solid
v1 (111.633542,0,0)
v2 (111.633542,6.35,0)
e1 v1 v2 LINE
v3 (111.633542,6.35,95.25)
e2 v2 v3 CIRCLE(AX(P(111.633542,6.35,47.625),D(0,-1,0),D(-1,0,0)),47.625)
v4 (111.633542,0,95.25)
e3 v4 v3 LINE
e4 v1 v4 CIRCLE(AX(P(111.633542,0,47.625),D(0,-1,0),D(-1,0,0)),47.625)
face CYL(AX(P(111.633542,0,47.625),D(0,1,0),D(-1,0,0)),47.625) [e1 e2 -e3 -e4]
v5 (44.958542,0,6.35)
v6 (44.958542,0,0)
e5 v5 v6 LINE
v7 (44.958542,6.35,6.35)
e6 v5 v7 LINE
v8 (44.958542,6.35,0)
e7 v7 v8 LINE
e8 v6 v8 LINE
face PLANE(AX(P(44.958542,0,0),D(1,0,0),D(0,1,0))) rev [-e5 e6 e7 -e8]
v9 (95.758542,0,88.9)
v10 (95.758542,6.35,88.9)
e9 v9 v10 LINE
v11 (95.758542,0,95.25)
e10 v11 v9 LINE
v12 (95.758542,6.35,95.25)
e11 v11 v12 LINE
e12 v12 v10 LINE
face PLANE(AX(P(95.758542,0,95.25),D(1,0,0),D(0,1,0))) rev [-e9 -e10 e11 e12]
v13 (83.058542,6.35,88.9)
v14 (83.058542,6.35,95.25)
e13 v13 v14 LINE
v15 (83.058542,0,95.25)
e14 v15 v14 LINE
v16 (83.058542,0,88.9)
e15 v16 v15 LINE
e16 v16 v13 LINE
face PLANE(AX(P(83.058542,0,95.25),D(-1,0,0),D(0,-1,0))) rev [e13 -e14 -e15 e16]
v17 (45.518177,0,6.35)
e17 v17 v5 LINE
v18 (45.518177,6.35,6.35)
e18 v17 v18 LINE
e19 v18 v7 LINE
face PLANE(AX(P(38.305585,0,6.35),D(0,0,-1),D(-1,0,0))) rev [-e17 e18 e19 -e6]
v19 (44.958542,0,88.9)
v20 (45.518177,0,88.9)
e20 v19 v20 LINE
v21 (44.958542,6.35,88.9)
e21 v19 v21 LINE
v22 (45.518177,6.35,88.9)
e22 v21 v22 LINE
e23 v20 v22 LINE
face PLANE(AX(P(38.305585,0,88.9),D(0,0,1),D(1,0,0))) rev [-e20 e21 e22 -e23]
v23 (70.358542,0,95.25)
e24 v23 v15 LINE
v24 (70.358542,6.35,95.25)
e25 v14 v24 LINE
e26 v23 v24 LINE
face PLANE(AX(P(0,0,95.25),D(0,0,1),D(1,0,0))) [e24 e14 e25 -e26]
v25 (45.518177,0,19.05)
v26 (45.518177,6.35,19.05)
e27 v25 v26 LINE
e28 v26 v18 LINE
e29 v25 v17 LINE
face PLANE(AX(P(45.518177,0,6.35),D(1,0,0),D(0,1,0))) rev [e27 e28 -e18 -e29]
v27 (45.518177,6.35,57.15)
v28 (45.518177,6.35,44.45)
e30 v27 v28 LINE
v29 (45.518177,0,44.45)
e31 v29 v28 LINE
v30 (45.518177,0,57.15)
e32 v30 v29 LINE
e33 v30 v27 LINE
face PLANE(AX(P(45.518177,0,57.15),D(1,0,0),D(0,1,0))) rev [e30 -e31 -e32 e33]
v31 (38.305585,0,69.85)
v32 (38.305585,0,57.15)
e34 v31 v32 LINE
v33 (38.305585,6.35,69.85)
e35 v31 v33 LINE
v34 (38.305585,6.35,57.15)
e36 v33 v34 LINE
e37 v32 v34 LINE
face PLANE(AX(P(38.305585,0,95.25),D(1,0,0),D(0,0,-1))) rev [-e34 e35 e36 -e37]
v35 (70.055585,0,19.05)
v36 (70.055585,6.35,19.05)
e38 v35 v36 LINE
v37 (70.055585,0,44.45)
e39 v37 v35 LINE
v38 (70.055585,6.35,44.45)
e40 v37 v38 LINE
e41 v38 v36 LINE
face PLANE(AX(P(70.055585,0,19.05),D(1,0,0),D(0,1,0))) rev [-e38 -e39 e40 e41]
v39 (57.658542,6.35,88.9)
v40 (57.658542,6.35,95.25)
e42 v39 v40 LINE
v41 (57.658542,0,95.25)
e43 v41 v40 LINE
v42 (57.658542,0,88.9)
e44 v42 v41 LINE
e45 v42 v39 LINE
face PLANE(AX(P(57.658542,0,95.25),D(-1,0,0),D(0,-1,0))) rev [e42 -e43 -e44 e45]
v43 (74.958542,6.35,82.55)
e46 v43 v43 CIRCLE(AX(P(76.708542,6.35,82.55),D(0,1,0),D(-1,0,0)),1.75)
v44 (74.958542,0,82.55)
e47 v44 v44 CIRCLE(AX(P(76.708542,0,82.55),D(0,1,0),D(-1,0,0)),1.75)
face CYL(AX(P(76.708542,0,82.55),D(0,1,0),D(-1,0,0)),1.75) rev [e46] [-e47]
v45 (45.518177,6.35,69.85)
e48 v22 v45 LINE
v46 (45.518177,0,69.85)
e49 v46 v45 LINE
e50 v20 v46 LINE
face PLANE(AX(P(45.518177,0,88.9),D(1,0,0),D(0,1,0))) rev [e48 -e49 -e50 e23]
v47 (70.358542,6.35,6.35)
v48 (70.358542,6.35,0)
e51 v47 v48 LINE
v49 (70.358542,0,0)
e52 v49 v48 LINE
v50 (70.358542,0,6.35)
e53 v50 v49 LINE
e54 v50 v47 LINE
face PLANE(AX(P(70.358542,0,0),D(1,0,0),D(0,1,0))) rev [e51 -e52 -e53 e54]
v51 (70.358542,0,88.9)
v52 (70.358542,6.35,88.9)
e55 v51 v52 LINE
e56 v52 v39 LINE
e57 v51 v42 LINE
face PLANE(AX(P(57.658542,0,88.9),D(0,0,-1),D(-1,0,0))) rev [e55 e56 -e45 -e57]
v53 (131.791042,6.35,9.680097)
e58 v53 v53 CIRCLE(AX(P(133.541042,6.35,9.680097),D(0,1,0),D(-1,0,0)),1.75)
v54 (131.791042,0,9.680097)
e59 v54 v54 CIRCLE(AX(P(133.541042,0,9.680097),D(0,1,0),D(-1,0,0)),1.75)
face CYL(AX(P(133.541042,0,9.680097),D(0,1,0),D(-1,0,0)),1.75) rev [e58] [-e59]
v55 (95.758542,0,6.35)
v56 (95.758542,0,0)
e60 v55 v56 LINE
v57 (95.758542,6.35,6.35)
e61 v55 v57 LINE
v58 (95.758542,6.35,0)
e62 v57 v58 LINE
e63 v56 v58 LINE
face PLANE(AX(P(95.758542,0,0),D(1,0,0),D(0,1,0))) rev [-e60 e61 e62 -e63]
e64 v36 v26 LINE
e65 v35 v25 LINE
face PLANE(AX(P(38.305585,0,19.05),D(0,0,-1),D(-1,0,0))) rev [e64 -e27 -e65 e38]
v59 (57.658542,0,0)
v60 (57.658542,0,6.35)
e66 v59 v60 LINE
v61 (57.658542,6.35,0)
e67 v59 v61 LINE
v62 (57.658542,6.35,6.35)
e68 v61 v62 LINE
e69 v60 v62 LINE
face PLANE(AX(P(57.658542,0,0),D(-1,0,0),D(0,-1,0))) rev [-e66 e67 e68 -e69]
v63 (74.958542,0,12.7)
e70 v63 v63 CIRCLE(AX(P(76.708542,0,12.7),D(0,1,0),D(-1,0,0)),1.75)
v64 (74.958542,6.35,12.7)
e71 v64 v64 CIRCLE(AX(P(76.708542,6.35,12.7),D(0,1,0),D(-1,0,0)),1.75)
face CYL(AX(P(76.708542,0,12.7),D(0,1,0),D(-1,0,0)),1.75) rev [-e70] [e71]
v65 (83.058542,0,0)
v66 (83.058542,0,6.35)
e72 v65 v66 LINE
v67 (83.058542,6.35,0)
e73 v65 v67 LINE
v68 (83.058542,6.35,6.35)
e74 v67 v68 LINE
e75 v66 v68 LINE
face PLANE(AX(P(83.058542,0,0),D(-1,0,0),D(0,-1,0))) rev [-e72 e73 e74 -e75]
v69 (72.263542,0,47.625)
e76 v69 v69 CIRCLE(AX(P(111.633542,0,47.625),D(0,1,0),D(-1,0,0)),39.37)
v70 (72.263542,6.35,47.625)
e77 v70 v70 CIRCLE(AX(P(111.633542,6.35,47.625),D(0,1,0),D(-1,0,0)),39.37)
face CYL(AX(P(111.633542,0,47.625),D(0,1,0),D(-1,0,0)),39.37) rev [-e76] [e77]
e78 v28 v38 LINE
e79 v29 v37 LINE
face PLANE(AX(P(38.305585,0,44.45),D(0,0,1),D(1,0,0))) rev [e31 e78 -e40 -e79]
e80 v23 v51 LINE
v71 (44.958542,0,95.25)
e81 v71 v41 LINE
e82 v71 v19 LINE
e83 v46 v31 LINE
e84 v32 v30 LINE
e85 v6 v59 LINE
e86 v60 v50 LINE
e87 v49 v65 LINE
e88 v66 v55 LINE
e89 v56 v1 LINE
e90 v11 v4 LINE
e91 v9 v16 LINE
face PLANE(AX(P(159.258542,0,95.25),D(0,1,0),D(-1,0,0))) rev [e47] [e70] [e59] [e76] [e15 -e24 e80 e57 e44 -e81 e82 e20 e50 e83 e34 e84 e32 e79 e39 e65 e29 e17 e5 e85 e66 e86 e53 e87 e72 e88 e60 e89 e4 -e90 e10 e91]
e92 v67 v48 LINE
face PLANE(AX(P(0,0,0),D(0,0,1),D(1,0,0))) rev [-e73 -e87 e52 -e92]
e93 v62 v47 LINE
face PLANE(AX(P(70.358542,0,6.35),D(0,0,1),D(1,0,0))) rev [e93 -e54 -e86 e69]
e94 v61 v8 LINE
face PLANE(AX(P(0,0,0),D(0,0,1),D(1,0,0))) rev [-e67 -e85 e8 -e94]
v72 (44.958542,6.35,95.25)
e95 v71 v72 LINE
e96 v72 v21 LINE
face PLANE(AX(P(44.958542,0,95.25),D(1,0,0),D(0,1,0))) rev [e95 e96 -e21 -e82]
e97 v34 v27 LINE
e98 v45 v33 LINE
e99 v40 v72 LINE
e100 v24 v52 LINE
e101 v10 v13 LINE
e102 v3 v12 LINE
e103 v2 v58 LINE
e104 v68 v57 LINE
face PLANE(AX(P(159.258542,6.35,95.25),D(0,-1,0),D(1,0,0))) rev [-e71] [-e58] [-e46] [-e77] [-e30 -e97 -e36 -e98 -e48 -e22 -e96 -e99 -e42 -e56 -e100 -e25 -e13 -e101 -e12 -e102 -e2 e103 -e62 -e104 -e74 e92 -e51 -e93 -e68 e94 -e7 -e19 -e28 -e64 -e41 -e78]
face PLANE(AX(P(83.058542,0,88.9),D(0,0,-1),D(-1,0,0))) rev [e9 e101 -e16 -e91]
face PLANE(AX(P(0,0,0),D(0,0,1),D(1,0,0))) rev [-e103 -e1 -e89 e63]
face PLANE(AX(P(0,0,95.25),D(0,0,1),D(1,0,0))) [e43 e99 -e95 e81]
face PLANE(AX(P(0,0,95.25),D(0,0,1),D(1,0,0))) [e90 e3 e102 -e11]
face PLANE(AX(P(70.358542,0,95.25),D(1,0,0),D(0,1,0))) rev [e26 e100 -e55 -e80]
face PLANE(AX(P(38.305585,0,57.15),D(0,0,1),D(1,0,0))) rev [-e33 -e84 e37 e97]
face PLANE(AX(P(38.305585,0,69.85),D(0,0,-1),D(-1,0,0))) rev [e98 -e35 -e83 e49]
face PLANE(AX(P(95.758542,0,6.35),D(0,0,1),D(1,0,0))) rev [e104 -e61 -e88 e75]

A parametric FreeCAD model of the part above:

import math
import FreeCAD as App
import Part
import Sketcher
Q = App.Units.Quantity


def add_polygon(sketch, points):
    """Adds a closed chain of lines whose ends are joined by coincident constraints."""
    first, n = sketch.GeometryCount, len(points)
    for a, b in zip(points, points[1:] + points[:1]):
        sketch.addGeometry(Part.LineSegment(App.Vector(*a, 0), App.Vector(*b, 0)), False)
    for i in range(n):
        sketch.addConstraint(Sketcher.Constraint("Coincident", first + i, 2, first + (i + 1) % n, 1))

doc = App.newDocument("Part")
params = doc.addObject("Spreadsheet::Sheet", "Params")
for row, (alias, value) in enumerate([
    ("sketch1_height", "0.25 in"),
    ("pad1_length", "3.75 in"),
    ("sketch2_diameter", "3.1 in"),
    ("sketch3_radius", "1.875 in"),
    ("sketch4_height", "1 in"),
    ("sketch4_width", "1.25 in"),
    ("sketch5_width", "0.5 in"),
    ("sketch5_height", "0.25 in"),
    ("linearpattern_pitch", "1 in"),
    ("sketch6_height", "0.5 in"),
    ("sketch6_height2", "0.75 in"),
], start=1):
    params.set(f"A{row}", alias)
    params.set(f"B{row}", "=" + value)
    params.setAlias(f"B{row}", alias)

body = doc.addObject("PartDesign::Body", "Body")

# Sketch on XY plane
sketch1 = doc.addObject("Sketcher::SketchObject", "Sketch")
body.addObject(sketch1)
sketch1.AttachmentSupport = (doc.XY_Plane, [""])
sketch1.MapMode = "FlatFace"
add_polygon(sketch1, [(38, 6), (38, 0), (159, 0), (159, 6)])  # lines 0-3
sketch1.addConstraint(Sketcher.Constraint("Vertical", 0))
sketch1.addConstraint(Sketcher.Constraint("Horizontal", 1))
sketch1.addConstraint(Sketcher.Constraint("Vertical", 2))
sketch1.addConstraint(Sketcher.Constraint("Horizontal", 3))
sketch1.addConstraint(Sketcher.Constraint("PointOnObject", 0, 2, -1))
sketch1.addConstraint(Sketcher.Constraint("DistanceY", 0, 2, 0, 1, Q("0.25 in")))
sketch1.addConstraint(Sketcher.Constraint("DistanceX", 1, 1, 1, 2, Q("120.952956 mm")))
sketch1.addConstraint(Sketcher.Constraint("DistanceX", -1, 1, 1, 2, Q("159.258542 mm")))
sketch1.setExpression("Constraints[9]", "Params.sketch1_height")
pad1 = doc.addObject("PartDesign::Pad", "Pad")
body.addObject(pad1)
pad1.Profile = sketch1
pad1.setExpression("Length", "Params.pad1_length")

# Sketch on XZ plane
sketch2 = doc.addObject("Sketcher::SketchObject", "Sketch001")
body.addObject(sketch2)
sketch2.AttachmentSupport = (doc.XZ_Plane, [""])
sketch2.MapMode = "FlatFace"
sketch2.AttachmentOffset = App.Placement(App.Vector(0, 0, -0.25 * 25.4), App.Rotation())
sketch2.addGeometry(Part.Circle(App.Vector(112, 48, 0), App.Vector(0, 0, 1), 39), False)
sketch2.addConstraint(Sketcher.Constraint("Diameter", 0, Q("3.1 in")))
sketch2.addConstraint(Sketcher.Constraint("DistanceY", -1, 1, 0, 3, Q("1.875 in")))
sketch2.addConstraint(Sketcher.Constraint("DistanceX", -1, 1, 0, 3, Q("111.633542 mm")))
sketch2.setExpression("Constraints[0]", "Params.sketch2_diameter")
pocket1 = doc.addObject("PartDesign::Pocket", "Pocket")
body.addObject(pocket1)
pocket1.Profile = sketch2
pocket1.Type = "ThroughAll"
pocket1.Reversed = True

# Sketch on XZ plane
sketch3 = doc.addObject("Sketcher::SketchObject", "Sketch002")
body.addObject(sketch3)
sketch3.AttachmentSupport = (doc.XZ_Plane, [""])
sketch3.MapMode = "FlatFace"
sketch3.AttachmentOffset = App.Placement(App.Vector(0, 0, -0.25 * 25.4), App.Rotation())
sketch3.addGeometry(Part.LineSegment(App.Vector(112, 95, 0), App.Vector(179, 95, 0)), False)
sketch3.addGeometry(Part.LineSegment(App.Vector(179, 95, 0), App.Vector(179, 0, 0)), False)
sketch3.addGeometry(Part.LineSegment(App.Vector(179, 0, 0), App.Vector(112, 0, 0)), False)
sketch3.addGeometry(Part.ArcOfCircle(Part.Circle(App.Vector(112, 48, 0), App.Vector(0, 0, 1), 48), math.radians(-90), math.radians(90)), False)
sketch3.addConstraint(Sketcher.Constraint("Coincident", 0, 2, 1, 1))
sketch3.addConstraint(Sketcher.Constraint("Coincident", 1, 2, 2, 1))
sketch3.addConstraint(Sketcher.Constraint("Tangent", 2, 2, 3, 1))
sketch3.addConstraint(Sketcher.Constraint("Tangent", 3, 2, 0, 1))
sketch3.addConstraint(Sketcher.Constraint("Horizontal", 0))
sketch3.addConstraint(Sketcher.Constraint("Vertical", 1))
sketch3.addConstraint(Sketcher.Constraint("Horizontal", 2))
sketch3.addConstraint(Sketcher.Constraint("PointOnObject", 1, 2, -1))
sketch3.addConstraint(Sketcher.Constraint("Radius", 3, Q("1.875 in")))
sketch3.addConstraint(Sketcher.Constraint("DistanceX", 0, 1, 0, 2, Q("67.417901 mm")))
sketch3.addConstraint(Sketcher.Constraint("DistanceX", -1, 1, 3, 3, Q("111.633542 mm")))
sketch3.setExpression("Constraints[8]", "Params.sketch3_radius")
pocket2 = doc.addObject("PartDesign::Pocket", "Pocket001")
body.addObject(pocket2)
pocket2.Profile = sketch3
pocket2.Type = "ThroughAll"
pocket2.Reversed = True

# Sketch on XZ plane
sketch4 = doc.addObject("Sketcher::SketchObject", "Sketch003")
body.addObject(sketch4)
sketch4.AttachmentSupport = (doc.XZ_Plane, [""])
sketch4.MapMode = "FlatFace"
sketch4.AttachmentOffset = App.Placement(App.Vector(0, 0, -0.25 * 25.4), App.Rotation())
add_polygon(sketch4, [(38, 19), (38, 44), (70, 44), (70, 19)])  # lines 0-3
sketch4.addConstraint(Sketcher.Constraint("Vertical", 0))
sketch4.addConstraint(Sketcher.Constraint("Horizontal", 1))
sketch4.addConstraint(Sketcher.Constraint("Vertical", 2))
sketch4.addConstraint(Sketcher.Constraint("Horizontal", 3))
sketch4.addConstraint(Sketcher.Constraint("DistanceY", 0, 1, 0, 2, Q("1 in")))
sketch4.addConstraint(Sketcher.Constraint("DistanceX", 1, 1, 1, 2, Q("1.25 in")))
sketch4.addConstraint(Sketcher.Constraint("DistanceY", -1, 1, 0, 2, Q("1.75 in")))
sketch4.addConstraint(Sketcher.Constraint("DistanceX", -1, 1, 0, 2, Q("38.305585 mm")))
sketch4.setExpression("Constraints[8]", "Params.sketch4_height")
sketch4.setExpression("Constraints[9]", "Params.sketch4_width")
pocket3 = doc.addObject("PartDesign::Pocket", "Pocket002")
body.addObject(pocket3)
pocket3.Profile = sketch4
pocket3.Type = "ThroughAll"
pocket3.Reversed = True

# Sketch on XZ plane
sketch5 = doc.addObject("Sketcher::SketchObject", "Sketch004")
body.addObject(sketch5)
sketch5.AttachmentSupport = (doc.XZ_Plane, [""])
sketch5.MapMode = "FlatFace"
sketch5.AttachmentOffset = App.Placement(App.Vector(0, 0, -0.25 * 25.4), App.Rotation())
add_polygon(sketch5, [(83, 0), (83, 6), (96, 6), (96, 0)])  # lines 0-3
add_polygon(sketch5, [(83, 89), (83, 95), (96, 95), (96, 89)])  # lines 4-7
sketch5.addConstraint(Sketcher.Constraint("Vertical", 0))
sketch5.addConstraint(Sketcher.Constraint("Horizontal", 1))
sketch5.addConstraint(Sketcher.Constraint("Vertical", 2))
sketch5.addConstraint(Sketcher.Constraint("Horizontal", 3))
sketch5.addConstraint(Sketcher.Constraint("Vertical", 4))
sketch5.addConstraint(Sketcher.Constraint("Horizontal", 5))
sketch5.addConstraint(Sketcher.Constraint("Vertical", 6))
sketch5.addConstraint(Sketcher.Constraint("Horizontal", 7))
sketch5.addConstraint(Sketcher.Constraint("PointOnObject", 2, 2, -1))
sketch5.addConstraint(Sketcher.Constraint("Vertical", 3, 2, 4, 2))
sketch5.addConstraint(Sketcher.Constraint("Vertical", 2, 2, 5, 2))
sketch5.addConstraint(Sketcher.Constraint("Equal", 2, 4))
sketch5.addConstraint(Sketcher.Constraint("DistanceX", 1, 1, 1, 2, Q("0.5 in")))
sketch5.addConstraint(Sketcher.Constraint("DistanceY", 0, 1, 0, 2, Q("0.25 in")))
sketch5.addConstraint(Sketcher.Constraint("DistanceY", -1, 1, 6, 2, Q("3.5 in")))
sketch5.addConstraint(Sketcher.Constraint("DistanceX", -1, 1, 0, 2, Q("83.058542 mm")))
sketch5.setExpression("Constraints[20]", "Params.sketch5_width")
sketch5.setExpression("Constraints[21]", "Params.sketch5_height")
pocket4 = doc.addObject("PartDesign::Pocket", "Pocket003")
body.addObject(pocket4)
pocket4.Profile = sketch5
pocket4.Type = "ThroughAll"
pocket4.Reversed = True
doc.recompute()

linearpattern = doc.addObject("PartDesign::LinearPattern", "LinearPattern")
body.addObject(linearpattern)
linearpattern.Originals = [pocket4]
linearpattern.Direction = (doc.X_Axis, [""])
linearpattern.Mode = "offset"
linearpattern.setExpression("Offset", "Params.linearpattern_pitch")
linearpattern.Occurrences = 3
linearpattern.Reversed = True
body.Tip = linearpattern

# Sketch on XZ plane
sketch6 = doc.addObject("Sketcher::SketchObject", "Sketch005")
body.addObject(sketch6)
sketch6.AttachmentSupport = (doc.XZ_Plane, [""])
sketch6.MapMode = "FlatFace"
sketch6.AttachmentOffset = App.Placement(App.Vector(0, 0, -0.25 * 25.4), App.Rotation())
add_polygon(sketch6, [(38, 6), (38, 19), (46, 19), (46, 6)])  # lines 0-3
add_polygon(sketch6, [(38, 70), (38, 89), (46, 89), (46, 70)])  # lines 4-7
add_polygon(sketch6, [(38, 44), (38, 57), (46, 57), (46, 44)])  # lines 8-11
sketch6.addConstraint(Sketcher.Constraint("Vertical", 0))
sketch6.addConstraint(Sketcher.Constraint("Horizontal", 1))
sketch6.addConstraint(Sketcher.Constraint("Vertical", 2))
sketch6.addConstraint(Sketcher.Constraint("Horizontal", 3))
sketch6.addConstraint(Sketcher.Constraint("Vertical", 4))
sketch6.addConstraint(Sketcher.Constraint("Horizontal", 5))
sketch6.addConstraint(Sketcher.Constraint("Vertical", 6))
sketch6.addConstraint(Sketcher.Constraint("Horizontal", 7))
sketch6.addConstraint(Sketcher.Constraint("Vertical", 8))
sketch6.addConstraint(Sketcher.Constraint("Horizontal", 9))
sketch6.addConstraint(Sketcher.Constraint("Vertical", 10))
sketch6.addConstraint(Sketcher.Constraint("Horizontal", 11))
sketch6.addConstraint(Sketcher.Constraint("Vertical", 3, 2, 4, 2))
sketch6.addConstraint(Sketcher.Constraint("Vertical", 2, 2, 5, 2))
sketch6.addConstraint(Sketcher.Constraint("Vertical", 7, 2, 8, 2))
sketch6.addConstraint(Sketcher.Constraint("Vertical", 6, 2, 9, 2))
sketch6.addConstraint(Sketcher.Constraint("Equal", 2, 8))
sketch6.addConstraint(Sketcher.Constraint("DistanceY", 0, 1, 0, 2, Q("0.5 in")))
sketch6.addConstraint(Sketcher.Constraint("DistanceY", 1, 2, 6, 2, Q("2 in")))
sketch6.addConstraint(Sketcher.Constraint("DistanceY", 10, 2, 6, 2, Q("1 in")))
sketch6.addConstraint(Sketcher.Constraint("DistanceY", 4, 1, 4, 2, Q("0.75 in")))
sketch6.addConstraint(Sketcher.Constraint("DistanceY", -1, 1, 4, 2, Q("3.5 in")))
sketch6.addConstraint(Sketcher.Constraint("DistanceX", 1, 1, 1, 2, Q("7.212592 mm")))
sketch6.addConstraint(Sketcher.Constraint("DistanceX", -1, 1, 0, 2, Q("38.305585 mm")))
sketch6.setExpression("Constraints[29]", "Params.sketch6_height")
sketch6.setExpression("Constraints[32]", "Params.sketch6_height2")
pocket5 = doc.addObject("PartDesign::Pocket", "Pocket004")
body.addObject(pocket5)
pocket5.Profile = sketch6
pocket5.Type = "ThroughAll"
pocket5.Reversed = True

# Sketch on XZ plane
sketch7 = doc.addObject("Sketcher::SketchObject", "Sketch006")
body.addObject(sketch7)
sketch7.AttachmentSupport = (doc.XZ_Plane, [""])
sketch7.MapMode = "FlatFace"
sketch7.AttachmentOffset = App.Placement(App.Vector(0, 0, -0.25 * 25.4), App.Rotation())
sketch7.addGeometry(Part.Circle(App.Vector(76.7, 12.7, 0), App.Vector(0, 0, 1), 1.8), False)
sketch7.addGeometry(Part.Circle(App.Vector(76.7, 82.5, 0), App.Vector(0, 0, 1), 1.8), False)
sketch7.addConstraint(Sketcher.Constraint("Equal", 0, 1))
sketch7.addConstraint(Sketcher.Constraint("Vertical", 0, 3, 1, 3))
sketch7.addConstraint(Sketcher.Constraint("DistanceY", -1, 1, 0, 3, Q("0.5 in")))
sketch7.addConstraint(Sketcher.Constraint("Diameter", 0, Q("3.5 mm")))
sketch7.addConstraint(Sketcher.Constraint("DistanceY", -1, 1, 1, 3, Q("3.25 in")))
sketch7.addConstraint(Sketcher.Constraint("DistanceX", -1, 1, 0, 3, Q("76.708542 mm")))
pocket6 = doc.addObject("PartDesign::Pocket", "Pocket005")
body.addObject(pocket6)
pocket6.Profile = sketch7
pocket6.Type = "ThroughAll"
pocket6.Reversed = True

# Sketch on XZ plane
sketch8 = doc.addObject("Sketcher::SketchObject", "Sketch007")
body.addObject(sketch8)
sketch8.AttachmentSupport = (doc.XZ_Plane, [""])
sketch8.MapMode = "FlatFace"
sketch8.AttachmentOffset = App.Placement(App.Vector(0, 0, -0.25 * 25.4), App.Rotation())
sketch8.addGeometry(Part.Circle(App.Vector(133.5, 9.7, 0), App.Vector(0, 0, 1), 1.8), False)
sketch8.addConstraint(Sketcher.Constraint("Diameter", 0, Q("3.5 mm")))
sketch8.addConstraint(Sketcher.Constraint("DistanceX", -1, 1, 0, 3, Q("133.541042 mm")))
sketch8.addConstraint(Sketcher.Constraint("DistanceY", -1, 1, 0, 3, Q("9.680097 mm")))
pocket7 = doc.addObject("PartDesign::Pocket", "Pocket006")
body.addObject(pocket7)
pocket7.Profile = sketch8
pocket7.Type = "ThroughAll"
pocket7.Reversed = True

doc.recompute()
